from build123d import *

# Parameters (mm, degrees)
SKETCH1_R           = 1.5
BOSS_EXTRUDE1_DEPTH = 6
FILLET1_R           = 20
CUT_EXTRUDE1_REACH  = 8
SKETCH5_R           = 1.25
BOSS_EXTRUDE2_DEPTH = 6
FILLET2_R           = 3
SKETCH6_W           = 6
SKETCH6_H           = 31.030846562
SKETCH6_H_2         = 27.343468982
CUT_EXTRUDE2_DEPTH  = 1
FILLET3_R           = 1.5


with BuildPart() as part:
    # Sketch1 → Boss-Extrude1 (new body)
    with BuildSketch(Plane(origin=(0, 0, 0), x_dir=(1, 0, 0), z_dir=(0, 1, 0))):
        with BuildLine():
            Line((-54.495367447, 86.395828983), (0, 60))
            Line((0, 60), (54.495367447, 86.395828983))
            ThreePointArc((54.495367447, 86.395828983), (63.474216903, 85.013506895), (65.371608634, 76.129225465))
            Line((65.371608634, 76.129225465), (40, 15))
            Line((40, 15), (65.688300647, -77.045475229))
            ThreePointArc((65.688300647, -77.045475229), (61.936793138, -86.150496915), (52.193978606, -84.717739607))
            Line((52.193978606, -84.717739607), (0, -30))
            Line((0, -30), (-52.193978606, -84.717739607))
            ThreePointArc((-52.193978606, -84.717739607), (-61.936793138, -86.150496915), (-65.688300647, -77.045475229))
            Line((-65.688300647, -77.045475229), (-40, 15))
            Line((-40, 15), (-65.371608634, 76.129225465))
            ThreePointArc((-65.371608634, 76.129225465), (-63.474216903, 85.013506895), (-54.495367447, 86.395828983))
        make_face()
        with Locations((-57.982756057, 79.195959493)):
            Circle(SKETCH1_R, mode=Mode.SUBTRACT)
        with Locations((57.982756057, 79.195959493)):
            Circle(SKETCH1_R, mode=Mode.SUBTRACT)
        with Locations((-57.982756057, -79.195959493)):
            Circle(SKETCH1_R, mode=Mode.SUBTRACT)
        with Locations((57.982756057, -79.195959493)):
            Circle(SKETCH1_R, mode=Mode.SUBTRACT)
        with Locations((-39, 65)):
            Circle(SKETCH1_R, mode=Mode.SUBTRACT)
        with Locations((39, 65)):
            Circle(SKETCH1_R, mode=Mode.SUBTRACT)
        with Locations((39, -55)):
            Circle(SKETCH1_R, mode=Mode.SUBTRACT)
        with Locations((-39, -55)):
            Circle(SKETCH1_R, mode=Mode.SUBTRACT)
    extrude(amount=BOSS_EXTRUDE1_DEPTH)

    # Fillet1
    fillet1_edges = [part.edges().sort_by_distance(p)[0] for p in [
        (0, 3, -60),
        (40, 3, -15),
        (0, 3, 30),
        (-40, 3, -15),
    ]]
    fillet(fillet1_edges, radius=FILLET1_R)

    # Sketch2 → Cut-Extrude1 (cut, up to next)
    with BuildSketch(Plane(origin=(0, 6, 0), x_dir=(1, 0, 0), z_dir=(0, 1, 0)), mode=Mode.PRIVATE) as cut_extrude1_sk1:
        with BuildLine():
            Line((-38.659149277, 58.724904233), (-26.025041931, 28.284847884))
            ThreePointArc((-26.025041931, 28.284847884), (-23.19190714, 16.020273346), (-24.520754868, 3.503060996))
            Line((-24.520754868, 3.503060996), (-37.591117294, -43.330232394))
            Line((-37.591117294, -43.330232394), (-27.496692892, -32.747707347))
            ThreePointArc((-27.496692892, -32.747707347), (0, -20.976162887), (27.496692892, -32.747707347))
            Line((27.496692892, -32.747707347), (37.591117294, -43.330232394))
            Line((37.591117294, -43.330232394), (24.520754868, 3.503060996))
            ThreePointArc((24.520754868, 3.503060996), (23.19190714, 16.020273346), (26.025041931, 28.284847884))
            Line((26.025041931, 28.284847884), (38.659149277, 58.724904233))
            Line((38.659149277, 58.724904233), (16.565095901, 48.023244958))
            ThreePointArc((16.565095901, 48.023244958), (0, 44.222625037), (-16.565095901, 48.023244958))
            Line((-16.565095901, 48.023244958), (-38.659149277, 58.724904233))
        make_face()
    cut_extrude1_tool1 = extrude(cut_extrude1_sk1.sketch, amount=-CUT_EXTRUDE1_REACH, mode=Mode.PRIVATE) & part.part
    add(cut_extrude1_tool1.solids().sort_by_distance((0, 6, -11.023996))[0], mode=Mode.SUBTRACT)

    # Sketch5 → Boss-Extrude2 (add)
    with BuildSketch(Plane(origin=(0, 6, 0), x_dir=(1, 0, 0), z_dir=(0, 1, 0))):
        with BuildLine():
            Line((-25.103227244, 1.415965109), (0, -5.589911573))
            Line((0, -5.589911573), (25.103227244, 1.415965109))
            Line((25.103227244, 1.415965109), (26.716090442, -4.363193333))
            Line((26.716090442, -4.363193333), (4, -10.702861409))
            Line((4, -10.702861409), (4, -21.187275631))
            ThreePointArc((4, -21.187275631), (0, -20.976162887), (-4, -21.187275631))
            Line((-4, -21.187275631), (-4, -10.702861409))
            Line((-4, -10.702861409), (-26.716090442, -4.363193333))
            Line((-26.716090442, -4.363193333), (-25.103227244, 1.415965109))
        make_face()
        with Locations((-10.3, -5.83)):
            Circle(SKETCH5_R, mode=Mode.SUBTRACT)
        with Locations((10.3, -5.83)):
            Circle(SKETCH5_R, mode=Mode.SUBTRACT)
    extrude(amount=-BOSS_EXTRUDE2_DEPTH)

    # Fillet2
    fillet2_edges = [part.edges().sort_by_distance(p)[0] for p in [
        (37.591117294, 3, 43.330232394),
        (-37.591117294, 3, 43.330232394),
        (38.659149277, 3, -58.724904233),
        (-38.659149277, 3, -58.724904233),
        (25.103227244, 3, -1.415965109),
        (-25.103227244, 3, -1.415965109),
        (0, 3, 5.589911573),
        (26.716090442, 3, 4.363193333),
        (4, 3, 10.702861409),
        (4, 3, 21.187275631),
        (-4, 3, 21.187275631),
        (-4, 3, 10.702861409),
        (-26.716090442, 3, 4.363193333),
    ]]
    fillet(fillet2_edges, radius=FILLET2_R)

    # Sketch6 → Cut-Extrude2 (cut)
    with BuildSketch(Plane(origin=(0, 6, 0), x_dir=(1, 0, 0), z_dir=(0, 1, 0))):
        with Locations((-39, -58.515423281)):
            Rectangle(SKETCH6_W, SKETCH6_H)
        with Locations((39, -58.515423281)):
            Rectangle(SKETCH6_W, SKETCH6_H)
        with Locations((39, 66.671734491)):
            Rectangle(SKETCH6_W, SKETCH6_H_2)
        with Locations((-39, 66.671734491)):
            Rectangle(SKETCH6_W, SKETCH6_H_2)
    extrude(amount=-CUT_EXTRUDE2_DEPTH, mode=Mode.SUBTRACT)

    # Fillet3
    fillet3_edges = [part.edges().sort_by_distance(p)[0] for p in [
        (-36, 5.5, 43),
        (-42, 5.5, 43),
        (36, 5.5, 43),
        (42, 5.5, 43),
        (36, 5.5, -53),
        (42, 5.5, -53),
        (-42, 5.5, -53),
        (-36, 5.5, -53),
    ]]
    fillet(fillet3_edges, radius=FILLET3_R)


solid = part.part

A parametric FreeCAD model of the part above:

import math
import FreeCAD as App
import Part
import Sketcher
Q = App.Units.Quantity


def edges_at(feature, points):
    """Names of the edges that pass closest to the given points."""
    edges = feature.Shape.Edges
    near = lambda p: min(range(len(edges)), key=lambda i: edges[i].distToShape(Part.Vertex(*p))[0])
    return sorted({f"Edge{near(p) + 1}" for p in points})

doc = App.newDocument("Part")
body = doc.addObject("PartDesign::Body", "Body")

sketch1 = body.newObject("Sketcher::SketchObject", "Sketch")
sketch1.AttachmentSupport = (doc.getObject("XZ_Plane"), [""])
sketch1.MapMode = "FlatFace"
sketch1.addGeometry(Part.LineSegment(App.Vector(0, -60, 0), App.Vector(-54.5, -86.4, 0)), False)
sketch1.addGeometry(Part.ArcOfCircle(Part.Circle(App.Vector(-58, -79.2, 0), App.Vector(0, 0, 1), 8), math.radians(157), math.radians(296)), False)
sketch1.addGeometry(Part.LineSegment(App.Vector(-65.4, -76.1, 0), App.Vector(-40, -15, 0)), False)
sketch1.addGeometry(Part.LineSegment(App.Vector(-40, -15, 0), App.Vector(-65.7, 77, 0)), False)
sketch1.addGeometry(Part.ArcOfCircle(Part.Circle(App.Vector(-58, 79.2, 0), App.Vector(0, 0, 1), 8), math.radians(44), math.radians(196)), False)
sketch1.addGeometry(Part.LineSegment(App.Vector(-52.2, 84.7, 0), App.Vector(0, 30, 0)), False)
sketch1.addGeometry(Part.LineSegment(App.Vector(0, 30, 0), App.Vector(52.2, 84.7, 0)), False)
sketch1.addGeometry(Part.ArcOfCircle(Part.Circle(App.Vector(58, 79.2, 0), App.Vector(0, 0, 1), 8), math.radians(-16), math.radians(136)), False)
sketch1.addGeometry(Part.LineSegment(App.Vector(65.7, 77, 0), App.Vector(40, -15, 0)), False)
sketch1.addGeometry(Part.LineSegment(App.Vector(40, -15, 0), App.Vector(65.4, -76.1, 0)), False)
sketch1.addGeometry(Part.ArcOfCircle(Part.Circle(App.Vector(58, -79.2, 0), App.Vector(0, 0, 1), 8), math.radians(-116), math.radians(23)), False)
sketch1.addGeometry(Part.LineSegment(App.Vector(54.5, -86.4, 0), App.Vector(0, -60, 0)), False)
sketch1.addGeometry(Part.Circle(App.Vector(58, 79.2, 0), App.Vector(0, 0, 1), 1.5), False)
sketch1.addGeometry(Part.Circle(App.Vector(39, 55, 0), App.Vector(0, 0, 1), 1.5), False)
sketch1.addGeometry(Part.Circle(App.Vector(-58, 79.2, 0), App.Vector(0, 0, 1), 1.5), False)
sketch1.addGeometry(Part.Circle(App.Vector(-39, 55, 0), App.Vector(0, 0, 1), 1.5), False)
sketch1.addGeometry(Part.Circle(App.Vector(58, -79.2, 0), App.Vector(0, 0, 1), 1.5), False)
sketch1.addGeometry(Part.Circle(App.Vector(39, -65, 0), App.Vector(0, 0, 1), 1.5), False)
sketch1.addGeometry(Part.Circle(App.Vector(-39, -65, 0), App.Vector(0, 0, 1), 1.5), False)
sketch1.addGeometry(Part.Circle(App.Vector(-58, -79.2, 0), App.Vector(0, 0, 1), 1.5), False)
sketch1.addConstraint(Sketcher.Constraint("Tangent", 0, 2, 1, 2))
sketch1.addConstraint(Sketcher.Constraint("Tangent", 1, 1, 2, 1))
sketch1.addConstraint(Sketcher.Constraint("Coincident", 2, 2, 3, 1))
sketch1.addConstraint(Sketcher.Constraint("Tangent", 3, 2, 4, 2))
sketch1.addConstraint(Sketcher.Constraint("Tangent", 4, 1, 5, 1))
sketch1.addConstraint(Sketcher.Constraint("Coincident", 5, 2, 6, 1))
sketch1.addConstraint(Sketcher.Constraint("Tangent", 6, 2, 7, 2))
sketch1.addConstraint(Sketcher.Constraint("Tangent", 7, 1, 8, 1))
sketch1.addConstraint(Sketcher.Constraint("Coincident", 8, 2, 9, 1))
sketch1.addConstraint(Sketcher.Constraint("Tangent", 9, 2, 10, 2))
sketch1.addConstraint(Sketcher.Constraint("Tangent", 10, 1, 11, 1))
sketch1.addConstraint(Sketcher.Constraint("Coincident", 11, 2, 0, 1))
sketch1.addConstraint(Sketcher.Constraint("Coincident", 12, 3, 7, 3))
sketch1.addConstraint(Sketcher.Constraint("Coincident", 14, 3, 4, 3))
sketch1.addConstraint(Sketcher.Constraint("Coincident", 16, 3, 10, 3))
sketch1.addConstraint(Sketcher.Constraint("Coincident", 19, 3, 1, 3))
sketch1.addConstraint(Sketcher.Constraint("Equal", 1, 4))
sketch1.addConstraint(Sketcher.Constraint("Equal", 4, 7))
sketch1.addConstraint(Sketcher.Constraint("Equal", 7, 10))
sketch1.addConstraint(Sketcher.Constraint("Equal", 12, 13))
sketch1.addConstraint(Sketcher.Constraint("Equal", 13, 14))
sketch1.addConstraint(Sketcher.Constraint("Equal", 14, 15))
sketch1.addConstraint(Sketcher.Constraint("Equal", 15, 16))
sketch1.addConstraint(Sketcher.Constraint("Equal", 16, 17))
sketch1.addConstraint(Sketcher.Constraint("Equal", 17, 18))
sketch1.addConstraint(Sketcher.Constraint("Equal", 18, 19))
sketch1.addConstraint(Sketcher.Constraint("Symmetric", 1, 3, 7, 3, -1, 1))
sketch1.addConstraint(Sketcher.Constraint("Symmetric", 4, 3, 10, 3, -1, 1))
sketch1.addConstraint(Sketcher.Constraint("Symmetric", 4, 3, 7, 3, -2))
sketch1.addConstraint(Sketcher.Constraint("Symmetric", 13, 3, 15, 3, -2))
sketch1.addConstraint(Sketcher.Constraint("Symmetric", 17, 3, 18, 3, -2))
sketch1.addConstraint(Sketcher.Constraint("Symmetric", 2, 2, 8, 2, -2))
sketch1.addConstraint(Sketcher.Constraint("PointOnObject", 5, 2, -2))
sketch1.addConstraint(Sketcher.Constraint("PointOnObject", 11, 2, -2))
sketch1.addConstraint(Sketcher.Constraint("Vertical", 13, 3, 17, 3))
sketch1.addConstraint(Sketcher.Constraint("Diameter", 12, Q("3 mm")))
sketch1.addConstraint(Sketcher.Constraint("Radius", 1, Q("8 mm")))
sketch1.addConstraint(Sketcher.Constraint("DistanceX", -1, 1, 13, 3, Q("39 mm")))
sketch1.addConstraint(Sketcher.Constraint("DistanceY", -1, 1, 13, 3, Q("55 mm")))
sketch1.addConstraint(Sketcher.Constraint("DistanceY", 17, 3, -1, 1, Q("65 mm")))
sketch1.addConstraint(Sketcher.Constraint("DistanceX", 2, 2, -1, 1, Q("40 mm")))
sketch1.addConstraint(Sketcher.Constraint("DistanceY", 2, 2, -1, 1, Q("15 mm")))
sketch1.addConstraint(Sketcher.Constraint("DistanceY", -1, 1, 5, 2, Q("30 mm")))
sketch1.addConstraint(Sketcher.Constraint("DistanceY", 11, 2, -1, 1, Q("60 mm")))
sketch1.addConstraint(Sketcher.Constraint("DistanceX", 3, 2, -1, 1, Q("65.688301 mm")))
sketch1.addConstraint(Sketcher.Constraint("Distance", 2, Q("66.185351 mm")))
pad1 = body.newObject("PartDesign::Pad", "Pad")
pad1.Profile = sketch1
pad1.Length = 6
pad1.Reversed = True
doc.recompute()

fillet = body.newObject("PartDesign::Fillet", "Fillet")
fillet.Base = (pad1, edges_at(pad1, [
    (0, 3, -60),
    (40, 3, -15),
    (0, 3, 30),
    (-40, 3, -15),
]))
fillet.Radius = 20

sketch2 = body.newObject("Sketcher::SketchObject", "Sketch001")
sketch2.AttachmentSupport = (doc.getObject("XZ_Plane"), [""])
sketch2.MapMode = "FlatFace"
sketch2.AttachmentOffset = App.Placement(App.Vector(0, 0, -6), App.Rotation())
sketch2.addGeometry(Part.LineSegment(App.Vector(-39, -59, 0), App.Vector(-26, -28, 0)), False)
sketch2.addGeometry(Part.ArcOfCircle(Part.Circle(App.Vector(-61, -14, 0), App.Vector(0, 0, 1), 38), math.radians(-23), math.radians(16)), False)
sketch2.addGeometry(Part.LineSegment(App.Vector(-25, -4, 0), App.Vector(-38, 43, 0)), False)
sketch2.addGeometry(Part.LineSegment(App.Vector(-38, 43, 0), App.Vector(-27, 33, 0)), False)
sketch2.addGeometry(Part.ArcOfCircle(Part.Circle(App.Vector(0, 59, 0), App.Vector(0, 0, 1), 38), math.radians(-136), math.radians(-44)), False)
sketch2.addGeometry(Part.LineSegment(App.Vector(27, 33, 0), App.Vector(38, 43, 0)), False)
sketch2.addGeometry(Part.LineSegment(App.Vector(38, 43, 0), App.Vector(25, -4, 0)), False)
sketch2.addGeometry(Part.ArcOfCircle(Part.Circle(App.Vector(61, -14, 0), App.Vector(0, 0, 1), 38), math.radians(164), math.radians(203)), False)
sketch2.addGeometry(Part.LineSegment(App.Vector(26, -28, 0), App.Vector(39, -59, 0)), False)
sketch2.addGeometry(Part.LineSegment(App.Vector(39, -59, 0), App.Vector(17, -48, 0)), False)
sketch2.addGeometry(Part.ArcOfCircle(Part.Circle(App.Vector(0, -82, 0), App.Vector(0, 0, 1), 38), math.radians(64), math.radians(116)), False)
sketch2.addGeometry(Part.LineSegment(App.Vector(-17, -48, 0), App.Vector(-39, -59, 0)), False)
sketch2.addConstraint(Sketcher.Constraint("Tangent", 0, 2, 1, 1))
sketch2.addConstraint(Sketcher.Constraint("Tangent", 1, 2, 2, 1))
sketch2.addConstraint(Sketcher.Constraint("Coincident", 2, 2, 3, 1))
sketch2.addConstraint(Sketcher.Constraint("Tangent", 3, 2, 4, 1))
sketch2.addConstraint(Sketcher.Constraint("Tangent", 4, 2, 5, 1))
sketch2.addConstraint(Sketcher.Constraint("Coincident", 5, 2, 6, 1))
sketch2.addConstraint(Sketcher.Constraint("Tangent", 6, 2, 7, 1))
sketch2.addConstraint(Sketcher.Constraint("Tangent", 7, 2, 8, 1))
sketch2.addConstraint(Sketcher.Constraint("Coincident", 8, 2, 9, 1))
sketch2.addConstraint(Sketcher.Constraint("Tangent", 9, 2, 10, 1))
sketch2.addConstraint(Sketcher.Constraint("Tangent", 10, 2, 11, 1))
sketch2.addConstraint(Sketcher.Constraint("Coincident", 11, 2, 0, 1))
sketch2.addConstraint(Sketcher.Constraint("Equal", 1, 4))
sketch2.addConstraint(Sketcher.Constraint("Equal", 4, 7))
sketch2.addConstraint(Sketcher.Constraint("Equal", 7, 10))
sketch2.addConstraint(Sketcher.Constraint("Symmetric", 1, 3, 7, 3, -2))
sketch2.addConstraint(Sketcher.Constraint("Symmetric", 3, 2, 4, 2, -2))
sketch2.addConstraint(Sketcher.Constraint("Symmetric", 9, 2, 10, 2, -2))
sketch2.addConstraint(Sketcher.Constraint("Horizontal", 2, 2, 5, 2))
sketch2.addConstraint(Sketcher.Constraint("Horizontal", 0, 2, 7, 2))
sketch2.addConstraint(Sketcher.Constraint("Radius", 1, Q("38 mm")))
sketch2.addConstraint(Sketcher.Constraint("DistanceY", 1, 3, 1, 2, Q("10.2148 mm")))
sketch2.addConstraint(Sketcher.Constraint("DistanceX", 1, 3, 3, 2, Q("33.625399 mm")))
sketch2.addConstraint(Sketcher.Constraint("DistanceX", 1, 3, -1, 1, Q("61.122092 mm")))
sketch2.addConstraint(Sketcher.Constraint("DistanceY", 1, 3, -1, 1, Q("13.717861 mm")))
sketch2.addConstraint(Sketcher.Constraint("DistanceX", 0, 2, -1, 1, Q("26.025042 mm")))
sketch2.addConstraint(Sketcher.Constraint("DistanceX", -1, 1, 8, 2, Q("38.659149 mm")))
sketch2.addConstraint(Sketcher.Constraint("DistanceY", 0, 2, 4, 3, Q("87.261011 mm")))
sketch2.addConstraint(Sketcher.Constraint("DistanceY", 10, 3, 8, 2, Q("23.497721 mm")))
pocket1 = body.newObject("PartDesign::Pocket", "Pocket")
pocket1.Profile = sketch2
pocket1.Type = "UpToFirst"
pocket1.Reversed = True

sketch3 = body.newObject("Sketcher::SketchObject", "Sketch002")
sketch3.AttachmentSupport = (doc.getObject("XZ_Plane"), [""])
sketch3.MapMode = "FlatFace"
sketch3.AttachmentOffset = App.Placement(App.Vector(0, 0, -6), App.Rotation())
sketch3.addGeometry(Part.LineSegment(App.Vector(0, 5.6, 0), App.Vector(-25.1, -1.4, 0)), False)
sketch3.addGeometry(Part.LineSegment(App.Vector(-25.1, -1.4, 0), App.Vector(-26.7, 4.4, 0)), False)
sketch3.addGeometry(Part.LineSegment(App.Vector(-26.7, 4.4, 0), App.Vector(-4, 10.7, 0)), False)
sketch3.addGeometry(Part.LineSegment(App.Vector(-4, 10.7, 0), App.Vector(-4, 21.2, 0)), False)
sketch3.addGeometry(Part.ArcOfCircle(Part.Circle(App.Vector(0, 59, 0), App.Vector(0, 0, 1), 38), math.radians(-96.04), math.radians(-83.96)), False)
sketch3.addGeometry(Part.LineSegment(App.Vector(4, 21.2, 0), App.Vector(4, 10.7, 0)), False)
sketch3.addGeometry(Part.LineSegment(App.Vector(4, 10.7, 0), App.Vector(26.7, 4.4, 0)), False)
sketch3.addGeometry(Part.LineSegment(App.Vector(26.7, 4.4, 0), App.Vector(25.1, -1.4, 0)), False)
sketch3.addGeometry(Part.LineSegment(App.Vector(25.1, -1.4, 0), App.Vector(0, 5.6, 0)), False)
sketch3.addGeometry(Part.Circle(App.Vector(10.3, 5.8, 0), App.Vector(0, 0, 1), 1.2), False)
sketch3.addGeometry(Part.Circle(App.Vector(-10.3, 5.8, 0), App.Vector(0, 0, 1), 1.2), False)
sketch3.addConstraint(Sketcher.Constraint("Coincident", 0, 2, 1, 1))
sketch3.addConstraint(Sketcher.Constraint("Coincident", 1, 2, 2, 1))
sketch3.addConstraint(Sketcher.Constraint("Coincident", 2, 2, 3, 1))
sketch3.addConstraint(Sketcher.Constraint("Coincident", 3, 2, 4, 1))
sketch3.addConstraint(Sketcher.Constraint("Coincident", 4, 2, 5, 1))
sketch3.addConstraint(Sketcher.Constraint("Coincident", 5, 2, 6, 1))
sketch3.addConstraint(Sketcher.Constraint("Coincident", 6, 2, 7, 1))
sketch3.addConstraint(Sketcher.Constraint("Coincident", 7, 2, 8, 1))
sketch3.addConstraint(Sketcher.Constraint("Coincident", 8, 2, 0, 1))
sketch3.addConstraint(Sketcher.Constraint("Vertical", 3))
sketch3.addConstraint(Sketcher.Constraint("Vertical", 5))
sketch3.addConstraint(Sketcher.Constraint("Equal", 9, 10))
sketch3.addConstraint(Sketcher.Constraint("Symmetric", 9, 3, 10, 3, -2))
sketch3.addConstraint(Sketcher.Constraint("Symmetric", 3, 2, 4, 2, -2))
sketch3.addConstraint(Sketcher.Constraint("Symmetric", 1, 2, 6, 2, -2))
sketch3.addConstraint(Sketcher.Constraint("Symmetric", 0, 2, 7, 2, -2))
sketch3.addConstraint(Sketcher.Constraint("PointOnObject", 8, 2, -2))
sketch3.addConstraint(Sketcher.Constraint("Perpendicular", 0, 1))
sketch3.addConstraint(Sketcher.Constraint("Perpendicular", 1, 2))
sketch3.addConstraint(Sketcher.Constraint("Perpendicular", 6, 7))
sketch3.addConstraint(Sketcher.Constraint("Radius", 4, Q("38 mm")))
sketch3.addConstraint(Sketcher.Constraint("Diameter", 9, Q("2.5 mm")))
sketch3.addConstraint(Sketcher.Constraint("Distance", 1, Q("6 mm")))
sketch3.addConstraint(Sketcher.Constraint("DistanceX", 2, 2, -1, 1, Q("4 mm")))
sketch3.addConstraint(Sketcher.Constraint("DistanceX", -1, 1, 9, 3, Q("10.3 mm")))
sketch3.addConstraint(Sketcher.Constraint("DistanceY", -1, 1, 9, 3, Q("5.83 mm")))
sketch3.addConstraint(Sketcher.Constraint("DistanceY", 2, 2, 4, 3, Q("48.273302 mm")))
sketch3.addConstraint(Sketcher.Constraint("Distance", 0, Q("26.062508 mm")))
sketch3.addConstraint(Sketcher.Constraint("Distance", 2, Q("23.584151 mm")))
sketch3.addConstraint(Sketcher.Constraint("DistanceY", -1, 1, 2, 2, Q("10.702861 mm")))
pad2 = body.newObject("PartDesign::Pad", "Pad001")
pad2.Profile = sketch3
pad2.Length = 6
doc.recompute()

fillet2 = body.newObject("PartDesign::Fillet", "Fillet001")
fillet2.Base = (pad2, edges_at(pad2, [
    (37.591, 3, 43.33),
    (-37.591, 3, 43.33),
    (38.659, 3, -58.725),
    (-38.659, 3, -58.725),
    (25.103, 3, -1.416),
    (-25.103, 3, -1.416),
    (0, 3, 5.59),
    (26.716, 3, 4.363),
    (4, 3, 10.703),
    (4, 3, 21.187),
    (-4, 3, 21.187),
    (-4, 3, 10.703),
    (-26.716, 3, 4.363),
]))
fillet2.Radius = 3

sketch4 = body.newObject("Sketcher::SketchObject", "Sketch003")
sketch4.AttachmentSupport = (doc.getObject("XZ_Plane"), [""])
sketch4.MapMode = "FlatFace"
sketch4.AttachmentOffset = App.Placement(App.Vector(0, 0, -6), App.Rotation())
sketch4.addGeometry(Part.LineSegment(App.Vector(-42, 43, 0), App.Vector(-42, 74, 0)), False)
sketch4.addGeometry(Part.LineSegment(App.Vector(-42, 74, 0), App.Vector(-36, 74, 0)), False)
sketch4.addGeometry(Part.LineSegment(App.Vector(-36, 74, 0), App.Vector(-36, 43, 0)), False)
sketch4.addGeometry(Part.LineSegment(App.Vector(-36, 43, 0), App.Vector(-42, 43, 0)), False)
sketch4.addGeometry(Part.LineSegment(App.Vector(36, 43, 0), App.Vector(36, 74, 0)), False)
sketch4.addGeometry(Part.LineSegment(App.Vector(36, 74, 0), App.Vector(42, 74, 0)), False)
sketch4.addGeometry(Part.LineSegment(App.Vector(42, 74, 0), App.Vector(42, 43, 0)), False)
sketch4.addGeometry(Part.LineSegment(App.Vector(42, 43, 0), App.Vector(36, 43, 0)), False)
sketch4.addGeometry(Part.LineSegment(App.Vector(36, -80, 0), App.Vector(36, -53, 0)), False)
sketch4.addGeometry(Part.LineSegment(App.Vector(36, -53, 0), App.Vector(42, -53, 0)), False)
sketch4.addGeometry(Part.LineSegment(App.Vector(42, -53, 0), App.Vector(42, -80, 0)), False)
sketch4.addGeometry(Part.LineSegment(App.Vector(42, -80, 0), App.Vector(36, -80, 0)), False)
sketch4.addGeometry(Part.LineSegment(App.Vector(-42, -80, 0), App.Vector(-42, -53, 0)), False)
sketch4.addGeometry(Part.LineSegment(App.Vector(-42, -53, 0), App.Vector(-36, -53, 0)), False)
sketch4.addGeometry(Part.LineSegment(App.Vector(-36, -53, 0), App.Vector(-36, -80, 0)), False)
sketch4.addGeometry(Part.LineSegment(App.Vector(-36, -80, 0), App.Vector(-42, -80, 0)), False)
sketch4.addConstraint(Sketcher.Constraint("Coincident", 0, 2, 1, 1))
sketch4.addConstraint(Sketcher.Constraint("Coincident", 1, 2, 2, 1))
sketch4.addConstraint(Sketcher.Constraint("Coincident", 2, 2, 3, 1))
sketch4.addConstraint(Sketcher.Constraint("Coincident", 3, 2, 0, 1))
sketch4.addConstraint(Sketcher.Constraint("Coincident", 4, 2, 5, 1))
sketch4.addConstraint(Sketcher.Constraint("Coincident", 5, 2, 6, 1))
sketch4.addConstraint(Sketcher.Constraint("Coincident", 6, 2, 7, 1))
sketch4.addConstraint(Sketcher.Constraint("Coincident", 7, 2, 4, 1))
sketch4.addConstraint(Sketcher.Constraint("Coincident", 8, 2, 9, 1))
sketch4.addConstraint(Sketcher.Constraint("Coincident", 9, 2, 10, 1))
sketch4.addConstraint(Sketcher.Constraint("Coincident", 10, 2, 11, 1))
sketch4.addConstraint(Sketcher.Constraint("Coincident", 11, 2, 8, 1))
sketch4.addConstraint(Sketcher.Constraint("Coincident", 12, 2, 13, 1))
sketch4.addConstraint(Sketcher.Constraint("Coincident", 13, 2, 14, 1))
sketch4.addConstraint(Sketcher.Constraint("Coincident", 14, 2, 15, 1))
sketch4.addConstraint(Sketcher.Constraint("Coincident", 15, 2, 12, 1))
sketch4.addConstraint(Sketcher.Constraint("Vertical", 0))
sketch4.addConstraint(Sketcher.Constraint("Horizontal", 1))
sketch4.addConstraint(Sketcher.Constraint("Vertical", 2))
sketch4.addConstraint(Sketcher.Constraint("Horizontal", 3))
sketch4.addConstraint(Sketcher.Constraint("Vertical", 4))
sketch4.addConstraint(Sketcher.Constraint("Horizontal", 5))
sketch4.addConstraint(Sketcher.Constraint("Vertical", 6))
sketch4.addConstraint(Sketcher.Constraint("Horizontal", 7))
sketch4.addConstraint(Sketcher.Constraint("Vertical", 8))
sketch4.addConstraint(Sketcher.Constraint("Horizontal", 9))
sketch4.addConstraint(Sketcher.Constraint("Vertical", 10))
sketch4.addConstraint(Sketcher.Constraint("Horizontal", 11))
sketch4.addConstraint(Sketcher.Constraint("Vertical", 12))
sketch4.addConstraint(Sketcher.Constraint("Horizontal", 13))
sketch4.addConstraint(Sketcher.Constraint("Vertical", 14))
sketch4.addConstraint(Sketcher.Constraint("Horizontal", 15))
sketch4.addConstraint(Sketcher.Constraint("Symmetric", 1, 2, 4, 2, -2))
sketch4.addConstraint(Sketcher.Constraint("Symmetric", 3, 2, 6, 2, -2))
sketch4.addConstraint(Sketcher.Constraint("Symmetric", 9, 2, 12, 2, -2))
sketch4.addConstraint(Sketcher.Constraint("Symmetric", 11, 2, 14, 2, -2))
sketch4.addConstraint(Sketcher.Constraint("Vertical", 7, 2, 8, 2))
sketch4.addConstraint(Sketcher.Constraint("Vertical", 6, 2, 9, 2))
sketch4.addConstraint(Sketcher.Constraint("DistanceX", 1, 1, 1, 2, Q("6 mm")))
sketch4.addConstraint(Sketcher.Constraint("DistanceX", 0, 2, -1, 1, Q("42 mm")))
sketch4.addConstraint(Sketcher.Constraint("DistanceY", -1, 1, 2, 2, Q("43 mm")))
sketch4.addConstraint(Sketcher.Constraint("DistanceY", 8, 2, -1, 1, Q("53 mm")))
sketch4.addConstraint(Sketcher.Constraint("DistanceY", 8, 1, 8, 2, Q("27.343469 mm")))
sketch4.addConstraint(Sketcher.Constraint("DistanceY", 0, 1, 0, 2, Q("31.030847 mm")))
pocket2 = body.newObject("PartDesign::Pocket", "Pocket001")
pocket2.Profile = sketch4
pocket2.Length = 1
pocket2.Reversed = True
doc.recompute()

fillet3 = body.newObject("PartDesign::Fillet", "Fillet002")
fillet3.Base = (pocket2, edges_at(pocket2, [
    (-36, 5.5, 43),
    (-42, 5.5, 43),
    (36, 5.5, 43),
    (42, 5.5, 43),
    (36, 5.5, -53),
    (42, 5.5, -53),
    (-42, 5.5, -53),
    (-36, 5.5, -53),
]))
fillet3.Radius = 1.5

doc.recompute()
